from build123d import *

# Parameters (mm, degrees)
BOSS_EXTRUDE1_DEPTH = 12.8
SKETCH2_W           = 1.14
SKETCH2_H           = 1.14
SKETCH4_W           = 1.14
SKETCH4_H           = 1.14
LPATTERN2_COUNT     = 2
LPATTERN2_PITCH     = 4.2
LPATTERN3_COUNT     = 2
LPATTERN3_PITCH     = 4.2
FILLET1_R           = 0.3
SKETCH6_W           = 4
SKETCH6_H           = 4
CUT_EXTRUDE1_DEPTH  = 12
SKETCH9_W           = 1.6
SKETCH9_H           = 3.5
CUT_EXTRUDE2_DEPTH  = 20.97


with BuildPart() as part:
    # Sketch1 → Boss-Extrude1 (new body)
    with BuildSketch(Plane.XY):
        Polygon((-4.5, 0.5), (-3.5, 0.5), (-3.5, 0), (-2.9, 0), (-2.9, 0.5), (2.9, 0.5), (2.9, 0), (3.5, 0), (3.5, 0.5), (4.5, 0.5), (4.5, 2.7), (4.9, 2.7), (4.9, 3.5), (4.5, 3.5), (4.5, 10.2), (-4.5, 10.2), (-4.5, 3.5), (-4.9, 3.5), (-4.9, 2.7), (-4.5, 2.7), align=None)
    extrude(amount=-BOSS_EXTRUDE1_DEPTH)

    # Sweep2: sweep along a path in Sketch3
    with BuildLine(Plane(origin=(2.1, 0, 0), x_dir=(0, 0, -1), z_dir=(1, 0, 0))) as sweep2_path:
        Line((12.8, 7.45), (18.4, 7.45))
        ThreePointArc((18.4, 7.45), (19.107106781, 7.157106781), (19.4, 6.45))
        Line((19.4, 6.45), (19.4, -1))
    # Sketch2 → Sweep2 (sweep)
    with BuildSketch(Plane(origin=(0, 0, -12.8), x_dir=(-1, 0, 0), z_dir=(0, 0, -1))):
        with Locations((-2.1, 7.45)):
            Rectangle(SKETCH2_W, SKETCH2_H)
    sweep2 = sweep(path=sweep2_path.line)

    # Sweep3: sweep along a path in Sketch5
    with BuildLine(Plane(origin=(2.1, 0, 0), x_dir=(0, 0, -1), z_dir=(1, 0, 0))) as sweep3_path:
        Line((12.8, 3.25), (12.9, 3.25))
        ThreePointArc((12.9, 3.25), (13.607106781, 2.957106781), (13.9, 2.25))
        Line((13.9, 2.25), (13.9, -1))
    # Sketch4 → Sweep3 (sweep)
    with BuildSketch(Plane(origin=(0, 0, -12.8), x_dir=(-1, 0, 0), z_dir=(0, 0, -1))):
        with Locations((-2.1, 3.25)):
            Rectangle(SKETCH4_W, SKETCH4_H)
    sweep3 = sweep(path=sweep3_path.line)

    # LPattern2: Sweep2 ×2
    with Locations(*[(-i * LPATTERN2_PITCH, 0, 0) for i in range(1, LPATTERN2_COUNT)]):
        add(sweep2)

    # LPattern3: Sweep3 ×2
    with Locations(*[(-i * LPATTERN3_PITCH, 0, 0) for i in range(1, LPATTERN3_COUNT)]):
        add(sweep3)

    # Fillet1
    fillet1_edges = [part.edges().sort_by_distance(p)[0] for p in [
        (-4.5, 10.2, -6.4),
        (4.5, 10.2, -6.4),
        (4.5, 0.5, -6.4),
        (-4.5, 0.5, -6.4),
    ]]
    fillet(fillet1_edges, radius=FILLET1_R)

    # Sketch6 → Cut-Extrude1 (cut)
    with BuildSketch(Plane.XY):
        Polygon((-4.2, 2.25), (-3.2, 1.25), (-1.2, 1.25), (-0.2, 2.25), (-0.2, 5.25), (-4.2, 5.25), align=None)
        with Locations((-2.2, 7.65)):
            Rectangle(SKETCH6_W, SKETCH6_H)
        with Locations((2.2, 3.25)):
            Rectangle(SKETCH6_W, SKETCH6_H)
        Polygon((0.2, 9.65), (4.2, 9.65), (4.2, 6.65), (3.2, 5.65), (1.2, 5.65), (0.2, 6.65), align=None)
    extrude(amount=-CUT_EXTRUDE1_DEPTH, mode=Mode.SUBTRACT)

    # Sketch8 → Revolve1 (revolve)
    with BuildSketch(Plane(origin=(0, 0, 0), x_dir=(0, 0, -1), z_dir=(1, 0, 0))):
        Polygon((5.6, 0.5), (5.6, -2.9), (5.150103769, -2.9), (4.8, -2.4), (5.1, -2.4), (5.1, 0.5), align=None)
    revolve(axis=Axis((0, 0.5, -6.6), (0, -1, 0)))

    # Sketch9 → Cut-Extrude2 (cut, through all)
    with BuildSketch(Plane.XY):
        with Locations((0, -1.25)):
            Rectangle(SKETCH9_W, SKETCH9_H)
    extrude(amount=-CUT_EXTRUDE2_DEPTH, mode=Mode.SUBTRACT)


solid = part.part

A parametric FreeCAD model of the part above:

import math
import FreeCAD as App
import Part
import Sketcher

V = App.Vector
Q = App.Units.Quantity


def edges_at(feature, points):
    """Names of the edges that pass closest to the given points."""
    edges = feature.Shape.Edges
    near = lambda p: min(range(len(edges)), key=lambda i: edges[i].distToShape(Part.Vertex(*p))[0])
    return sorted({f"Edge{near(p) + 1}" for p in points})

doc = App.newDocument("Part")
body = doc.addObject("PartDesign::Body", "Body")

# Sketch on XY plane
sketch1 = body.newObject("Sketcher::SketchObject", "Sketch")
sketch1.AttachmentSupport = (doc.getObject("XY_Plane"), [""])
sketch1.MapMode = "FlatFace"
sketch1.addGeometry([
    Part.LineSegment(V(-4.5, 0.5, 0), V(-3.5, 0.5, 0)),  # 0
    Part.LineSegment(V(-3.5, 0.5, 0), V(-3.5, 0, 0)),  # 1
    Part.LineSegment(V(-3.5, 0, 0), V(-2.9, 0, 0)),  # 2
    Part.LineSegment(V(-2.9, 0, 0), V(-2.9, 0.5, 0)),  # 3
    Part.LineSegment(V(-2.9, 0.5, 0), V(2.9, 0.5, 0)),  # 4
    Part.LineSegment(V(2.9, 0.5, 0), V(2.9, 0, 0)),  # 5
    Part.LineSegment(V(2.9, 0, 0), V(3.5, 0, 0)),  # 6
    Part.LineSegment(V(3.5, 0, 0), V(3.5, 0.5, 0)),  # 7
    Part.LineSegment(V(3.5, 0.5, 0), V(4.5, 0.5, 0)),  # 8
    Part.LineSegment(V(4.5, 0.5, 0), V(4.5, 2.7, 0)),  # 9
    Part.LineSegment(V(4.5, 2.7, 0), V(4.9, 2.7, 0)),  # 10
    Part.LineSegment(V(4.9, 2.7, 0), V(4.9, 3.5, 0)),  # 11
    Part.LineSegment(V(4.9, 3.5, 0), V(4.5, 3.5, 0)),  # 12
    Part.LineSegment(V(4.5, 3.5, 0), V(4.5, 10.2, 0)),  # 13
    Part.LineSegment(V(4.5, 10.2, 0), V(-4.5, 10.2, 0)),  # 14
    Part.LineSegment(V(-4.5, 10.2, 0), V(-4.5, 3.5, 0)),  # 15
    Part.LineSegment(V(-4.5, 3.5, 0), V(-4.9, 3.5, 0)),  # 16
    Part.LineSegment(V(-4.9, 3.5, 0), V(-4.9, 2.7, 0)),  # 17
    Part.LineSegment(V(-4.9, 2.7, 0), V(-4.5, 2.7, 0)),  # 18
    Part.LineSegment(V(-4.5, 2.7, 0), V(-4.5, 0.5, 0)),  # 19
], False)
sketch1.addConstraint([
    Sketcher.Constraint("Coincident", 0, 2, 1, 1),
    Sketcher.Constraint("Coincident", 1, 2, 2, 1),
    Sketcher.Constraint("Coincident", 2, 2, 3, 1),
    Sketcher.Constraint("Coincident", 3, 2, 4, 1),
    Sketcher.Constraint("Coincident", 4, 2, 5, 1),
    Sketcher.Constraint("Coincident", 5, 2, 6, 1),
    Sketcher.Constraint("Coincident", 6, 2, 7, 1),
    Sketcher.Constraint("Coincident", 7, 2, 8, 1),
    Sketcher.Constraint("Coincident", 8, 2, 9, 1),
    Sketcher.Constraint("Coincident", 9, 2, 10, 1),
    Sketcher.Constraint("Coincident", 10, 2, 11, 1),
    Sketcher.Constraint("Coincident", 11, 2, 12, 1),
    Sketcher.Constraint("Coincident", 12, 2, 13, 1),
    Sketcher.Constraint("Coincident", 13, 2, 14, 1),
    Sketcher.Constraint("Coincident", 14, 2, 15, 1),
    Sketcher.Constraint("Coincident", 15, 2, 16, 1),
    Sketcher.Constraint("Coincident", 16, 2, 17, 1),
    Sketcher.Constraint("Coincident", 17, 2, 18, 1),
    Sketcher.Constraint("Coincident", 18, 2, 19, 1),
    Sketcher.Constraint("Coincident", 19, 2, 0, 1),
    Sketcher.Constraint("Horizontal", 0),
    Sketcher.Constraint("Vertical", 1),
    Sketcher.Constraint("Horizontal", 2),
    Sketcher.Constraint("Vertical", 3),
    Sketcher.Constraint("Horizontal", 4),
    Sketcher.Constraint("Vertical", 5),
    Sketcher.Constraint("Horizontal", 6),
    Sketcher.Constraint("Vertical", 7),
    Sketcher.Constraint("Horizontal", 8),
    Sketcher.Constraint("Vertical", 9),
    Sketcher.Constraint("Horizontal", 10),
    Sketcher.Constraint("Vertical", 11),
    Sketcher.Constraint("Horizontal", 12),
    Sketcher.Constraint("Vertical", 13),
    Sketcher.Constraint("Horizontal", 14),
    Sketcher.Constraint("Vertical", 15),
    Sketcher.Constraint("Horizontal", 16),
    Sketcher.Constraint("Vertical", 17),
    Sketcher.Constraint("Horizontal", 18),
    Sketcher.Constraint("Vertical", 19),
    Sketcher.Constraint("Symmetric", 2, 2, 5, 2, -1, 1),
    Sketcher.Constraint("Symmetric", 1, 2, 6, 2, -2),
    Sketcher.Constraint("Symmetric", 12, 2, 15, 2, -2),
    Sketcher.Constraint("Symmetric", 10, 2, 17, 2, -2),
    Sketcher.Constraint("Symmetric", 8, 2, 19, 2, -2),
    Sketcher.Constraint("Horizontal", 0, 2, 3, 2),
    Sketcher.Constraint("Vertical", 9, 2, 12, 2),
    Sketcher.Constraint("DistanceX", 0, 1, 0, 2, 1.0),
    Sketcher.Constraint("DistanceX", 14, 2, 14, 1, 9.0),
    Sketcher.Constraint("DistanceX", 2, 1, 2, 2, 0.6),
    Sketcher.Constraint("DistanceX", 10, 1, 10, 2, 0.4),
    Sketcher.Constraint("DistanceY", 1, 2, 1, 1, 0.5),
    Sketcher.Constraint("DistanceY", 9, 1, 9, 2, 2.2),
    Sketcher.Constraint("DistanceY", 11, 1, 11, 2, 0.8),
    Sketcher.Constraint("DistanceY", 13, 1, 13, 2, 6.7),
])
pad1 = body.newObject("PartDesign::Pad", "Pad")
pad1.Profile = sketch1
pad1.Length = 12.8
pad1.Reversed = True

# Sketch on XY plane
sketch2 = body.newObject("Sketcher::SketchObject", "Sketch001")
sketch2.AttachmentSupport = (doc.getObject("XY_Plane"), [""])
sketch2.MapMode = "FlatFace"
sketch2.AttachmentOffset = App.Placement(V(0, 0, -12.8), App.Rotation())
sketch2.addGeometry([
    Part.LineSegment(V(2.7, 8, 0), V(2.7, 6.9, 0)),
    Part.LineSegment(V(2.7, 6.9, 0), V(1.5, 6.9, 0)),
    Part.LineSegment(V(1.5, 6.9, 0), V(1.5, 8, 0)),
    Part.LineSegment(V(1.5, 8, 0), V(2.7, 8, 0)),
], False)
sketch2.addConstraint([
    Sketcher.Constraint("Coincident", 0, 2, 1, 1),
    Sketcher.Constraint("Coincident", 1, 2, 2, 1),
    Sketcher.Constraint("Coincident", 2, 2, 3, 1),
    Sketcher.Constraint("Coincident", 3, 2, 0, 1),
    Sketcher.Constraint("Vertical", 0),
    Sketcher.Constraint("Horizontal", 1),
    Sketcher.Constraint("Vertical", 2),
    Sketcher.Constraint("Horizontal", 3),
    Sketcher.Constraint("Equal", 3, 0),
    Sketcher.Constraint("DistanceX", 1, 2, 1, 1, 1.14),
    Sketcher.Constraint("DistanceX", -1, 1, 0, 2, 2.67),
    Sketcher.Constraint("DistanceY", -1, 1, 0, 2, 6.88),
])

# Sketch on YZ plane
sketch3 = body.newObject("Sketcher::SketchObject", "Sketch002")
sketch3.AttachmentSupport = (doc.getObject("YZ_Plane"), [""])
sketch3.MapMode = "FlatFace"
sketch3.AttachmentOffset = App.Placement(V(0, 0, 2.1), App.Rotation())
sketch3.addGeometry([
    Part.LineSegment(V(7.5, -12.8, 0), V(7.5, -18.4, 0)),
    Part.ArcOfCircle(Part.Circle(V(6.4, -18.4, 0), V(0, 0, 1), 1), math.radians(-90), math.radians(0)),
    Part.LineSegment(V(6.5, -19.4, 0), V(-1, -19.4, 0)),
], False)
sketch3.addConstraint([
    Sketcher.Constraint("Tangent", 0, 2, 1, 2),
    Sketcher.Constraint("Tangent", 1, 1, 2, 1),
    Sketcher.Constraint("Vertical", 0),
    Sketcher.Constraint("Horizontal", 2),
    Sketcher.Constraint("Radius", 1, 1.0),
    Sketcher.Constraint("DistanceY", 0, 2, 0, 1, 5.6),
    Sketcher.Constraint("DistanceX", 2, 2, -1, 1, 1.0),
    Sketcher.Constraint("DistanceX", 2, 2, 2, 1, 7.45),
    Sketcher.Constraint("DistanceY", 1, 3, -1, 1, 18.4),
])
doc.recompute()

additivepipe = body.newObject("PartDesign::AdditivePipe", "AdditivePipe")
additivepipe.Profile = sketch2
additivepipe.Spine = (sketch3, ["Edge1", "Edge2", "Edge3"])

# Sketch on XY plane
sketch4 = body.newObject("Sketcher::SketchObject", "Sketch003")
sketch4.AttachmentSupport = (doc.getObject("XY_Plane"), [""])
sketch4.MapMode = "FlatFace"
sketch4.AttachmentOffset = App.Placement(V(0, 0, -12.8), App.Rotation())
sketch4.addGeometry([
    Part.LineSegment(V(2.7, 3.8, 0), V(2.7, 2.7, 0)),
    Part.LineSegment(V(2.7, 2.7, 0), V(1.5, 2.7, 0)),
    Part.LineSegment(V(1.5, 2.7, 0), V(1.5, 3.8, 0)),
    Part.LineSegment(V(1.5, 3.8, 0), V(2.7, 3.8, 0)),
], False)
sketch4.addConstraint([
    Sketcher.Constraint("Coincident", 0, 2, 1, 1),
    Sketcher.Constraint("Coincident", 1, 2, 2, 1),
    Sketcher.Constraint("Coincident", 2, 2, 3, 1),
    Sketcher.Constraint("Coincident", 3, 2, 0, 1),
    Sketcher.Constraint("Vertical", 0),
    Sketcher.Constraint("Horizontal", 1),
    Sketcher.Constraint("Vertical", 2),
    Sketcher.Constraint("Horizontal", 3),
    Sketcher.Constraint("Equal", 3, 0),
    Sketcher.Constraint("DistanceX", 1, 2, 1, 1, 1.14),
    Sketcher.Constraint("DistanceX", -1, 1, 0, 2, 2.67),
    Sketcher.Constraint("DistanceY", -1, 1, 0, 2, 2.68),
])

# Sketch on YZ plane
sketch5 = body.newObject("Sketcher::SketchObject", "Sketch004")
sketch5.AttachmentSupport = (doc.getObject("YZ_Plane"), [""])
sketch5.MapMode = "FlatFace"
sketch5.AttachmentOffset = App.Placement(V(0, 0, 2.1), App.Rotation())
sketch5.addGeometry([
    Part.LineSegment(V(3.25, -12.8, 0), V(3.25, -12.9, 0)),
    Part.ArcOfCircle(Part.Circle(V(2.25, -12.9, 0), V(0, 0, 1), 1), math.radians(-90), math.radians(0)),
    Part.LineSegment(V(2.25, -13.9, 0), V(-1, -13.9, 0)),
], False)
sketch5.addConstraint([
    Sketcher.Constraint("Tangent", 0, 2, 1, 2),
    Sketcher.Constraint("Tangent", 1, 1, 2, 1),
    Sketcher.Constraint("Vertical", 0),
    Sketcher.Constraint("Horizontal", 2),
    Sketcher.Constraint("Radius", 1, 1.0),
    Sketcher.Constraint("DistanceY", 0, 2, 0, 1, 0.1),
    Sketcher.Constraint("DistanceX", 2, 2, -1, 1, 1.0),
    Sketcher.Constraint("DistanceX", 2, 2, 2, 1, 3.25),
    Sketcher.Constraint("DistanceY", 1, 3, -1, 1, 12.9),
])
doc.recompute()

additivepipe2 = body.newObject("PartDesign::AdditivePipe", "AdditivePipe001")
additivepipe2.Profile = sketch4
additivepipe2.Spine = (sketch5, ["Edge1", "Edge2", "Edge3"])
doc.recompute()

linearpattern = body.newObject("PartDesign::LinearPattern", "LinearPattern")
linearpattern.Originals = [additivepipe]
linearpattern.Direction = (doc.getObject("X_Axis"), [""])
linearpattern.Mode = "offset"
linearpattern.Offset = 4.2
linearpattern.Occurrences = 2
linearpattern.Reversed = True
body.Tip = linearpattern
doc.recompute()

linearpattern2 = body.newObject("PartDesign::LinearPattern", "LinearPattern001")
linearpattern2.Originals = [additivepipe2]
linearpattern2.Direction = (doc.getObject("X_Axis"), [""])
linearpattern2.Mode = "offset"
linearpattern2.Offset = 4.2
linearpattern2.Occurrences = 2
linearpattern2.Reversed = True
body.Tip = linearpattern2
doc.recompute()

fillet = body.newObject("PartDesign::Fillet", "Fillet")
fillet.Base = (linearpattern2, edges_at(linearpattern2, [
    (-4.5, 10.2, -6.4),
    (4.5, 10.2, -6.4),
    (4.5, 0.5, -6.4),
    (-4.5, 0.5, -6.4),
]))
fillet.Radius = 0.3

# Sketch on XY plane
sketch6 = body.newObject("Sketcher::SketchObject", "Sketch005")
sketch6.AttachmentSupport = (doc.getObject("XY_Plane"), [""])
sketch6.MapMode = "FlatFace"
sketch6.addGeometry([
    Part.LineSegment(V(-4.2, 2.2, 0), V(-3.2, 1.2, 0)),  # 0
    Part.LineSegment(V(-3.2, 1.2, 0), V(-1.2, 1.2, 0)),  # 1
    Part.LineSegment(V(-1.2, 1.2, 0), V(-0.2, 2.2, 0)),  # 2
    Part.LineSegment(V(-0.2, 2.2, 0), V(-0.2, 5.2, 0)),  # 3
    Part.LineSegment(V(-0.2, 5.2, 0), V(-4.2, 5.2, 0)),  # 4
    Part.LineSegment(V(-4.2, 5.2, 0), V(-4.2, 2.2, 0)),  # 5
    Part.LineSegment(V(-4.2, 9.7, 0), V(-4.2, 5.7, 0)),  # 6
    Part.LineSegment(V(-4.2, 5.7, 0), V(-0.2, 5.7, 0)),  # 7
    Part.LineSegment(V(-0.2, 5.7, 0), V(-0.2, 9.7, 0)),  # 8
    Part.LineSegment(V(-0.2, 9.7, 0), V(-4.2, 9.7, 0)),  # 9
    Part.LineSegment(V(0.2, 5.2, 0), V(0.2, 1.2, 0)),  # 10
    Part.LineSegment(V(0.2, 1.2, 0), V(4.2, 1.2, 0)),  # 11
    Part.LineSegment(V(4.2, 1.2, 0), V(4.2, 5.2, 0)),  # 12
    Part.LineSegment(V(4.2, 5.2, 0), V(0.2, 5.2, 0)),  # 13
    Part.LineSegment(V(4.2, 9.7, 0), V(0.2, 9.7, 0)),  # 14
    Part.LineSegment(V(0.2, 9.7, 0), V(0.2, 6.7, 0)),  # 15
    Part.LineSegment(V(0.2, 6.7, 0), V(1.2, 5.7, 0)),  # 16
    Part.LineSegment(V(1.2, 5.7, 0), V(3.2, 5.7, 0)),  # 17
    Part.LineSegment(V(3.2, 5.7, 0), V(4.2, 6.7, 0)),  # 18
    Part.LineSegment(V(4.2, 6.7, 0), V(4.2, 9.7, 0)),  # 19
], False)
sketch6.addConstraint([
    Sketcher.Constraint("Coincident", 0, 2, 1, 1),
    Sketcher.Constraint("Coincident", 1, 2, 2, 1),
    Sketcher.Constraint("Coincident", 2, 2, 3, 1),
    Sketcher.Constraint("Coincident", 3, 2, 4, 1),
    Sketcher.Constraint("Coincident", 4, 2, 5, 1),
    Sketcher.Constraint("Coincident", 5, 2, 0, 1),
    Sketcher.Constraint("Coincident", 6, 2, 7, 1),
    Sketcher.Constraint("Coincident", 7, 2, 8, 1),
    Sketcher.Constraint("Coincident", 8, 2, 9, 1),
    Sketcher.Constraint("Coincident", 9, 2, 6, 1),
    Sketcher.Constraint("Coincident", 10, 2, 11, 1),
    Sketcher.Constraint("Coincident", 11, 2, 12, 1),
    Sketcher.Constraint("Coincident", 12, 2, 13, 1),
    Sketcher.Constraint("Coincident", 13, 2, 10, 1),
    Sketcher.Constraint("Coincident", 14, 2, 15, 1),
    Sketcher.Constraint("Coincident", 15, 2, 16, 1),
    Sketcher.Constraint("Coincident", 16, 2, 17, 1),
    Sketcher.Constraint("Coincident", 17, 2, 18, 1),
    Sketcher.Constraint("Coincident", 18, 2, 19, 1),
    Sketcher.Constraint("Coincident", 19, 2, 14, 1),
    Sketcher.Constraint("Horizontal", 1),
    Sketcher.Constraint("Vertical", 3),
    Sketcher.Constraint("Horizontal", 4),
    Sketcher.Constraint("Vertical", 5),
    Sketcher.Constraint("Vertical", 6),
    Sketcher.Constraint("Horizontal", 7),
    Sketcher.Constraint("Vertical", 8),
    Sketcher.Constraint("Horizontal", 9),
    Sketcher.Constraint("Vertical", 10),
    Sketcher.Constraint("Horizontal", 11),
    Sketcher.Constraint("Vertical", 12),
    Sketcher.Constraint("Horizontal", 13),
    Sketcher.Constraint("Horizontal", 14),
    Sketcher.Constraint("Vertical", 15),
    Sketcher.Constraint("Horizontal", 17),
    Sketcher.Constraint("Vertical", 19),
    Sketcher.Constraint("Symmetric", 4, 2, 12, 2, -2),
    Sketcher.Constraint("Symmetric", 8, 2, 14, 2, -2),
    Sketcher.Constraint("Perpendicular", 0, 2),
    Sketcher.Constraint("Perpendicular", 2, 16),
    Sketcher.Constraint("Perpendicular", 16, 18),
    Sketcher.Constraint("Horizontal", 2, 2, 5, 2),
    Sketcher.Constraint("Horizontal", 1, 2, 10, 2),
    Sketcher.Constraint("Horizontal", 7, 2, 16, 2),
    Sketcher.Constraint("Horizontal", 15, 2, 18, 2),
    Sketcher.Constraint("Vertical", 5, 2, 6, 2),
    Sketcher.Constraint("Vertical", 3, 2, 7, 2),
    Sketcher.Constraint("Vertical", 13, 2, 14, 2),
    Sketcher.Constraint("Vertical", 12, 2, 18, 2),
    Sketcher.Constraint("Equal", 1, 17),
    Sketcher.Constraint("Equal", 14, 6),
    Sketcher.Constraint("Equal", 8, 10),
    Sketcher.Constraint("Equal", 0, 2),
    Sketcher.Constraint("DistanceX", 1, 1, 1, 2, 2.0),
    Sketcher.Constraint("DistanceX", 4, 2, 4, 1, 4.0),
    Sketcher.Constraint("DistanceX", 0, 2, -1, 1, 3.2),
    Sketcher.Constraint("DistanceY", 4, 2, 6, 2, 0.4),
    Sketcher.Constraint("DistanceY", -1, 1, 0, 2, 1.25),
])
pocket1 = body.newObject("PartDesign::Pocket", "Pocket")
pocket1.Profile = sketch6
pocket1.Length = 12

# Sketch on YZ plane
sketch7 = body.newObject("Sketcher::SketchObject", "Sketch006")
sketch7.AttachmentSupport = (doc.getObject("YZ_Plane"), [""])
sketch7.MapMode = "FlatFace"
sketch7.addGeometry([
    Part.LineSegment(V(-2.9, -5.6, 0), V(0.5, -5.6, 0)),  # 0
    Part.LineSegment(V(0.5, -5.6, 0), V(0.5, -5.1, 0)),  # 1
    Part.LineSegment(V(0.5, -5.1, 0), V(-2.4, -5.1, 0)),  # 2
    Part.LineSegment(V(-2.4, -5.1, 0), V(-2.4, -4.8, 0)),  # 3
    Part.LineSegment(V(-2.4, -4.8, 0), V(-2.9, -5.15, 0)),  # 4
    Part.LineSegment(V(-2.9, -5.15, 0), V(-2.9, -5.6, 0)),  # 5
], False)
sketch7.addGeometry(Part.LineSegment(V(0.5, -6.6, 0), V(-2.9, -6.6, 0)), True)  # axis
sketch7.addConstraint([
    Sketcher.Constraint("Coincident", 0, 2, 1, 1),
    Sketcher.Constraint("Coincident", 1, 2, 2, 1),
    Sketcher.Constraint("Coincident", 2, 2, 3, 1),
    Sketcher.Constraint("Coincident", 3, 2, 4, 1),
    Sketcher.Constraint("Coincident", 4, 2, 5, 1),
    Sketcher.Constraint("Coincident", 5, 2, 0, 1),
    Sketcher.Constraint("Horizontal", 0),
    Sketcher.Constraint("Vertical", 1),
    Sketcher.Constraint("Horizontal", 2),
    Sketcher.Constraint("Vertical", 3),
    Sketcher.Constraint("Vertical", 5),
    Sketcher.Constraint("Horizontal", 6),
    Sketcher.Constraint("Vertical", 1, 2, 6, 1),
    Sketcher.Constraint("Vertical", 5, 2, 6, 2),
    Sketcher.Constraint("Angle", 4, Q("-145 deg")),
    Sketcher.Constraint("DistanceX", 0, 1, 0, 2, 3.4),
    Sketcher.Constraint("DistanceX", 2, 2, 2, 1, 2.9),
    Sketcher.Constraint("DistanceY", 1, 1, 1, 2, 0.5),
    Sketcher.Constraint("DistanceY", 3, 1, 3, 2, 0.3),
    Sketcher.Constraint("DistanceY", 6, 1, 0, 2, 1.0),
    Sketcher.Constraint("DistanceX", -1, 1, 0, 2, 0.5),
    Sketcher.Constraint("DistanceY", 0, 2, -1, 1, 5.6),
])
revolution = body.newObject("PartDesign::Revolution", "Revolution")
revolution.Profile = sketch7
revolution.ReferenceAxis = (sketch7, ["Axis0"])
revolution.Angle = 360

# Sketch on XY plane
sketch8 = body.newObject("Sketcher::SketchObject", "Sketch007")
sketch8.AttachmentSupport = (doc.getObject("XY_Plane"), [""])
sketch8.MapMode = "FlatFace"
sketch8.addGeometry([
    Part.LineSegment(V(-0.8, 0.5, 0), V(-0.8, -3, 0)),
    Part.LineSegment(V(-0.8, -3, 0), V(0.8, -3, 0)),
    Part.LineSegment(V(0.8, -3, 0), V(0.8, 0.5, 0)),
    Part.LineSegment(V(0.8, 0.5, 0), V(-0.8, 0.5, 0)),
], False)
sketch8.addConstraint([
    Sketcher.Constraint("Coincident", 0, 2, 1, 1),
    Sketcher.Constraint("Coincident", 1, 2, 2, 1),
    Sketcher.Constraint("Coincident", 2, 2, 3, 1),
    Sketcher.Constraint("Coincident", 3, 2, 0, 1),
    Sketcher.Constraint("Vertical", 0),
    Sketcher.Constraint("Horizontal", 1),
    Sketcher.Constraint("Vertical", 2),
    Sketcher.Constraint("Horizontal", 3),
    Sketcher.Constraint("DistanceX", 1, 1, 1, 2, 1.6),
    Sketcher.Constraint("DistanceY", 0, 2, 0, 1, 3.5),
    Sketcher.Constraint("DistanceY", 0, 2, -1, 1, 3.0),
    Sketcher.Constraint("DistanceX", 0, 2, -1, 1, 0.8),
])
pocket2 = body.newObject("PartDesign::Pocket", "Pocket001")
pocket2.Profile = sketch8
pocket2.Type = "ThroughAll"

doc.recompute()
